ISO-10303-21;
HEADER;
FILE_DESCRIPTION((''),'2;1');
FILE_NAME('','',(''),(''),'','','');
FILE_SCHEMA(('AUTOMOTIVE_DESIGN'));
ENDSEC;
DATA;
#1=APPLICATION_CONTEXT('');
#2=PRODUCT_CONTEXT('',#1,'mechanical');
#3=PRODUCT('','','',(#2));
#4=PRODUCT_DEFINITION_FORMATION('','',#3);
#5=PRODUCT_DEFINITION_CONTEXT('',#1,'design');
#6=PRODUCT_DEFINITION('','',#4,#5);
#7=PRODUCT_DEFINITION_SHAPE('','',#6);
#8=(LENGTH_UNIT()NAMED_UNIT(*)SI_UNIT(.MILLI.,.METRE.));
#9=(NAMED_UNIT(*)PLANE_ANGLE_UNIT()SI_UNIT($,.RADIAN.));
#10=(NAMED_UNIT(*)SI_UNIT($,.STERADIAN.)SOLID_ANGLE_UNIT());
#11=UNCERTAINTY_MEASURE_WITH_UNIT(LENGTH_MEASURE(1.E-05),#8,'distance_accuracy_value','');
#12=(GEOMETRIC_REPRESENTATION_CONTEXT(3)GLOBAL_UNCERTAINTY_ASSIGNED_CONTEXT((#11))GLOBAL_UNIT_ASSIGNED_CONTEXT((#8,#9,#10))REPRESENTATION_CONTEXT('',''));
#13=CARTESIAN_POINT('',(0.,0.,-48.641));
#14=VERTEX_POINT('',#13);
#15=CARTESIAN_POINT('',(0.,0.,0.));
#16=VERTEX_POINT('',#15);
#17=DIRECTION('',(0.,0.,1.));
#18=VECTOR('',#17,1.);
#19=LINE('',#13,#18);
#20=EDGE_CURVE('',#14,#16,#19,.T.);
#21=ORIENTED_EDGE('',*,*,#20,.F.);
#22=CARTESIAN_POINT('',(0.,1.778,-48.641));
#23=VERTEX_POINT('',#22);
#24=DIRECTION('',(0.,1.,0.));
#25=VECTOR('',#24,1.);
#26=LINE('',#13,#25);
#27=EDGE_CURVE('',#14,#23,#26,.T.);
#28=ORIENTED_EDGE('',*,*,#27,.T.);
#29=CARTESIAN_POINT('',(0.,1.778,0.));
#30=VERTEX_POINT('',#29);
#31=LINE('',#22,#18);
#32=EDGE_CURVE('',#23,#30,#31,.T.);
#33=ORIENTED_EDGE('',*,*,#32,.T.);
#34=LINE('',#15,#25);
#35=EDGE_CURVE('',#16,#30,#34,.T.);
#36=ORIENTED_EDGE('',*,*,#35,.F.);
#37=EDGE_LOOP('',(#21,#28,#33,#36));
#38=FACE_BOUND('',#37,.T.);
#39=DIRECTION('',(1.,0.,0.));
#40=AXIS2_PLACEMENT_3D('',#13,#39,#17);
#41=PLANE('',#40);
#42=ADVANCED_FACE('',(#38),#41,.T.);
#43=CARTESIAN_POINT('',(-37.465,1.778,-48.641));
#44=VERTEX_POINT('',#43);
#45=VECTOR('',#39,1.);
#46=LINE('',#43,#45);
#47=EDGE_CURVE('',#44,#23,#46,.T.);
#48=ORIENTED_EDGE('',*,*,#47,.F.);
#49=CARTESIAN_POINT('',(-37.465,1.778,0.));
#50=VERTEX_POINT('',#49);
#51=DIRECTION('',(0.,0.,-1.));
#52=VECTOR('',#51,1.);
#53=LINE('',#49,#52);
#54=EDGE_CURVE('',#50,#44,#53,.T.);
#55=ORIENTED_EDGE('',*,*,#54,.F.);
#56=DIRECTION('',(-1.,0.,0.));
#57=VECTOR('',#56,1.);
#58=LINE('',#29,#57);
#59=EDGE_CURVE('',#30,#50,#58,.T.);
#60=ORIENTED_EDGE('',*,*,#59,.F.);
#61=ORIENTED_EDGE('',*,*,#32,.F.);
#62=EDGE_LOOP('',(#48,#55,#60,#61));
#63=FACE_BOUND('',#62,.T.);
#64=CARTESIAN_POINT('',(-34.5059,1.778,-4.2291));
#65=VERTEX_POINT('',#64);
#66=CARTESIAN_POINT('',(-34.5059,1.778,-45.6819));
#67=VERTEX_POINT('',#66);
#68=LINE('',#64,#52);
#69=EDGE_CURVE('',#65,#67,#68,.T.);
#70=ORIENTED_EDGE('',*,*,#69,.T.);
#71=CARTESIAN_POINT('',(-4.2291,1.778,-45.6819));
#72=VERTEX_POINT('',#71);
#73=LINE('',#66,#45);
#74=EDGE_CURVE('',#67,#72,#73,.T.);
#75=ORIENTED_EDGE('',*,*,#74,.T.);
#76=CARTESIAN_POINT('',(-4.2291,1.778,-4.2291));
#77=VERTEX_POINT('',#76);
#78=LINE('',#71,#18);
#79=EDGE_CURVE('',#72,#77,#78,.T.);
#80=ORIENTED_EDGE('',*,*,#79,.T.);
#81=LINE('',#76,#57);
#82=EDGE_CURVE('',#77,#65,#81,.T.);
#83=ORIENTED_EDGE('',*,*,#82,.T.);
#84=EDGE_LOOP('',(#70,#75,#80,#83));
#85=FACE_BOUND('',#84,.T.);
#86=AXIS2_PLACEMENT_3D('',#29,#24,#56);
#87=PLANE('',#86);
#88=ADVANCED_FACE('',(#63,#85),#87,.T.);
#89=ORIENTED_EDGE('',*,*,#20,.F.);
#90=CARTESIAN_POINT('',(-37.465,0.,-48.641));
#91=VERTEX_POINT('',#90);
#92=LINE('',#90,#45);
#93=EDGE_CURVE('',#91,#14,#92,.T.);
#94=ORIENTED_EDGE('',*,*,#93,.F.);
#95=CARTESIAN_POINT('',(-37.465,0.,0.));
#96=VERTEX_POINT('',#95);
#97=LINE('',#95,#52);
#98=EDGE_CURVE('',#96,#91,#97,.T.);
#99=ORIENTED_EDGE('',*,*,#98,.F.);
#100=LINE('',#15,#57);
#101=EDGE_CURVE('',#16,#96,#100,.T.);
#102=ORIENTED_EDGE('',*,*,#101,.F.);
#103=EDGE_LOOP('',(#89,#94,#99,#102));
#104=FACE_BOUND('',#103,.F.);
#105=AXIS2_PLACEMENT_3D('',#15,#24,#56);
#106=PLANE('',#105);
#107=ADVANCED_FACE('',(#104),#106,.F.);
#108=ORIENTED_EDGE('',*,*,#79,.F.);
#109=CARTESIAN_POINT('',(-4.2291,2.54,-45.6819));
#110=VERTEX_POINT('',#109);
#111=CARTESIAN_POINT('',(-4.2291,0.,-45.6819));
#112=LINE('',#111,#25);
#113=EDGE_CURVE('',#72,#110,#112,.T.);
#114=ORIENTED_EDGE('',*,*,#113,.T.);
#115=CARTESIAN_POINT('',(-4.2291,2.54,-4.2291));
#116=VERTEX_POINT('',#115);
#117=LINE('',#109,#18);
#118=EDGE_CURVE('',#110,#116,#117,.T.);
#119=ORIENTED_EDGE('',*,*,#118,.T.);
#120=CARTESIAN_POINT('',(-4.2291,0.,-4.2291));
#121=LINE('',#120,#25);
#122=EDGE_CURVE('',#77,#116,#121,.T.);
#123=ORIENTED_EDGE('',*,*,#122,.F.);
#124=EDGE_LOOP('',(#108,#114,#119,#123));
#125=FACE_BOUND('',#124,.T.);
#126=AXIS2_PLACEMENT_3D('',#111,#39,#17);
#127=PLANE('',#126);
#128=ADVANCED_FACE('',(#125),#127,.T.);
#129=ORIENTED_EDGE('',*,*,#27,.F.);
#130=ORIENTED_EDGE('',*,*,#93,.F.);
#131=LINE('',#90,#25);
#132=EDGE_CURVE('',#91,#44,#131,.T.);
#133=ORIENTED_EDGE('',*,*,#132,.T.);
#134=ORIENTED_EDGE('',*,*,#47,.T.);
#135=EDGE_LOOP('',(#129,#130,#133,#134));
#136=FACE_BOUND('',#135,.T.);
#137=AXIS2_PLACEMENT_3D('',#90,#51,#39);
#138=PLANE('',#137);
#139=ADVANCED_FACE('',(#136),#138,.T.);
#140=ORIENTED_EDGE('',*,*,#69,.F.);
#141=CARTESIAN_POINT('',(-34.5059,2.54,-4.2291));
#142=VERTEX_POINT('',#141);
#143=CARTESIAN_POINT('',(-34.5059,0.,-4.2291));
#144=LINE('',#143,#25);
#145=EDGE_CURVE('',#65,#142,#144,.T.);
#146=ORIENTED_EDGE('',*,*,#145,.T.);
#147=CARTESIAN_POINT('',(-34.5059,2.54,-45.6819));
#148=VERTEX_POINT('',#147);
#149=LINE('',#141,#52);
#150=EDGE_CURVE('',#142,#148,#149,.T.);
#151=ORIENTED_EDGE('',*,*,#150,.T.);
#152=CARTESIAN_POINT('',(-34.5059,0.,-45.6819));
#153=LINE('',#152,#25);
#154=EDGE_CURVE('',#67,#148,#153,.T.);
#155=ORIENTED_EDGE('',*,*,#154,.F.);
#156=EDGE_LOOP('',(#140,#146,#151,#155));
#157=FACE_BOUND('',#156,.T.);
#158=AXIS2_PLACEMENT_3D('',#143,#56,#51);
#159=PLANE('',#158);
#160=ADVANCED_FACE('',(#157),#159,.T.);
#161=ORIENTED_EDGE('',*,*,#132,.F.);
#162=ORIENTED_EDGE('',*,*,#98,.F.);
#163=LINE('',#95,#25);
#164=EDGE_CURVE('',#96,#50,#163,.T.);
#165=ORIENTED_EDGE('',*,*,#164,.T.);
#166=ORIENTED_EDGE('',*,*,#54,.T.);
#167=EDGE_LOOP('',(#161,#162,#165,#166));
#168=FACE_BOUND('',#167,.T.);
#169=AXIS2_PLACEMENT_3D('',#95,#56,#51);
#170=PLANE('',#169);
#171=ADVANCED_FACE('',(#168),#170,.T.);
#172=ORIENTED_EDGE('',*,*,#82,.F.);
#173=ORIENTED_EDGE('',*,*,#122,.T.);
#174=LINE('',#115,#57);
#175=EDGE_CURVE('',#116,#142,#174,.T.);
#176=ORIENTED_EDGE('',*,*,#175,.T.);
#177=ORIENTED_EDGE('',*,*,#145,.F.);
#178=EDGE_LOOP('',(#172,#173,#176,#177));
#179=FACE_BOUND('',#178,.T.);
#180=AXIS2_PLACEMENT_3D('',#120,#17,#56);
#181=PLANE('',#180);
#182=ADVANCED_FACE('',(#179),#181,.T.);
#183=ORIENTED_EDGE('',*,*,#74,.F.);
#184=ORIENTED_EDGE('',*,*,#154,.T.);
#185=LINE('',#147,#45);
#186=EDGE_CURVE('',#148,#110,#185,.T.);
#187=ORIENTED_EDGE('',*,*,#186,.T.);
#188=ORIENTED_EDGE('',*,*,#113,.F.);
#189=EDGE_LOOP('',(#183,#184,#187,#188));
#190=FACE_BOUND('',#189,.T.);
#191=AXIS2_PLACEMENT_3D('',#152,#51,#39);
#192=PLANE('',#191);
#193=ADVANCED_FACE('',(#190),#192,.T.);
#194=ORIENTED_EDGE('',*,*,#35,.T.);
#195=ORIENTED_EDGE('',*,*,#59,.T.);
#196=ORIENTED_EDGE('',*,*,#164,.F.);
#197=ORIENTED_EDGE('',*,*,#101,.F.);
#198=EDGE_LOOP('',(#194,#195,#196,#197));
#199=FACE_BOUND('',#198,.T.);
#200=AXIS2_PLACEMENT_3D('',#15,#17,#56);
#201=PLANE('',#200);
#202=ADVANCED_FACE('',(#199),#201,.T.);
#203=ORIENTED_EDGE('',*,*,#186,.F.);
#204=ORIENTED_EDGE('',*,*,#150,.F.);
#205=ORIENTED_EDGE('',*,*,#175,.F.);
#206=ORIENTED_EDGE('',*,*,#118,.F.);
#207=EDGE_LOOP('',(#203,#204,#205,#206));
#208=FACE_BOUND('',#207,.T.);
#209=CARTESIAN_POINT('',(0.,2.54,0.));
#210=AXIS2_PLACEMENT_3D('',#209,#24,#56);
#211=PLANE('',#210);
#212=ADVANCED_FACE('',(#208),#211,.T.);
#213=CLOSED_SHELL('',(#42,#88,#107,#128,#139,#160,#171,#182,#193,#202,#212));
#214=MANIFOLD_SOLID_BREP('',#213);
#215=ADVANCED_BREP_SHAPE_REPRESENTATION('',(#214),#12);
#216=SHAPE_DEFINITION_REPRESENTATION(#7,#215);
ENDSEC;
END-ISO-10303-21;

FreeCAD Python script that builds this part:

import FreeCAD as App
import Part
import Sketcher

V = App.Vector
Q = App.Units.Quantity


def add_polygon(sketch, points):
    """Adds a closed chain of lines whose ends are joined by coincident constraints."""
    first, n = sketch.GeometryCount, len(points)
    for a, b in zip(points, points[1:] + points[:1]):
        sketch.addGeometry(Part.LineSegment(App.Vector(*a, 0), App.Vector(*b, 0)), False)
    for i in range(n):
        sketch.addConstraint(Sketcher.Constraint("Coincident", first + i, 2, first + (i + 1) % n, 1))

doc = App.newDocument("Part")
params = doc.addObject("Spreadsheet::Sheet", "Params")
for row, (alias, value) in enumerate([
    ("sketch1_width", "1.192 in"),
    ("sketch1_height", "1.632 in"),
    ("pad1_length", "0.1 in"),
    ("sketch2_width", "1.475 in"),
    ("sketch2_width2", "1.192 in"),
    ("sketch2_height", "1.915 in"),
    ("sketch2_height2", "1.632 in"),
    ("pad2_length", "0.07 in"),
], start=1):
    params.set(f"A{row}", alias)
    params.set(f"B{row}", "=" + value)
    params.setAlias(f"B{row}", alias)

body = doc.addObject("PartDesign::Body", "Body")

sketch1 = body.newObject("Sketcher::SketchObject", "Sketch")
sketch1.AttachmentSupport = (doc.getObject("XZ_Plane"), [""])
sketch1.MapMode = "FlatFace"
add_polygon(sketch1, [(-34.5059, -4.2291), (-4.2291, -4.2291), (-4.2291, -45.6819), (-34.5059, -45.6819)])
sketch1.addConstraint(Sketcher.Constraint("Horizontal", 0))
sketch1.addConstraint(Sketcher.Constraint("Vertical", 1))
sketch1.addConstraint(Sketcher.Constraint("Horizontal", 2))
sketch1.addConstraint(Sketcher.Constraint("Vertical", 3))
sketch1.addConstraint(Sketcher.Constraint("DistanceX", 0, 1, 0, 2, Q("1.192 in")))
sketch1.addConstraint(Sketcher.Constraint("DistanceY", 1, 2, 1, 1, Q("1.632 in")))
sketch1.addConstraint(Sketcher.Constraint("DistanceX", 0, 2, -1, 1, Q("0.1665 in")))
sketch1.addConstraint(Sketcher.Constraint("DistanceY", 0, 2, -1, 1, Q("0.1665 in")))
sketch1.setExpression("Constraints[8]", "Params.sketch1_width")
sketch1.setExpression("Constraints[9]", "Params.sketch1_height")
pad1 = body.newObject("PartDesign::Pad", "Pad")
pad1.Profile = sketch1
pad1.setExpression("Length", "Params.pad1_length")
pad1.Reversed = True

sketch2 = body.newObject("Sketcher::SketchObject", "Sketch001")
sketch2.AttachmentSupport = (doc.getObject("XZ_Plane"), [""])
sketch2.MapMode = "FlatFace"
add_polygon(sketch2, [(-37.465, 0), (0, 0), (0, -48.641), (-37.465, -48.641)])
add_polygon(sketch2, [(-4.2291, -45.6819), (-4.2291, -4.2291), (-34.5059, -4.2291), (-34.5059, -45.6819)])
sketch2.addConstraint(Sketcher.Constraint("Horizontal", 0))
sketch2.addConstraint(Sketcher.Constraint("Vertical", 1))
sketch2.addConstraint(Sketcher.Constraint("Horizontal", 2))
sketch2.addConstraint(Sketcher.Constraint("Vertical", 3))
sketch2.addConstraint(Sketcher.Constraint("Vertical", 4))
sketch2.addConstraint(Sketcher.Constraint("Horizontal", 5))
sketch2.addConstraint(Sketcher.Constraint("Vertical", 6))
sketch2.addConstraint(Sketcher.Constraint("Horizontal", 7))
sketch2.addConstraint(Sketcher.Constraint("Coincident", 0, 2, -1, 1))
sketch2.addConstraint(Sketcher.Constraint("DistanceX", 0, 1, 0, 2, Q("1.475 in")))
sketch2.addConstraint(Sketcher.Constraint("DistanceX", 5, 2, 5, 1, Q("1.192 in")))
sketch2.addConstraint(Sketcher.Constraint("DistanceY", 1, 2, 1, 1, Q("1.915 in")))
sketch2.addConstraint(Sketcher.Constraint("DistanceY", 4, 1, 4, 2, Q("1.632 in")))
sketch2.addConstraint(Sketcher.Constraint("DistanceX", 4, 2, -1, 1, Q("0.1665 in")))
sketch2.addConstraint(Sketcher.Constraint("DistanceY", 4, 2, -1, 1, Q("0.1665 in")))
sketch2.setExpression("Constraints[17]", "Params.sketch2_width")
sketch2.setExpression("Constraints[18]", "Params.sketch2_width2")
sketch2.setExpression("Constraints[19]", "Params.sketch2_height")
sketch2.setExpression("Constraints[20]", "Params.sketch2_height2")
pad2 = body.newObject("PartDesign::Pad", "Pad001")
pad2.Profile = sketch2
pad2.setExpression("Length", "Params.pad2_length")
pad2.Reversed = True

doc.recompute()
